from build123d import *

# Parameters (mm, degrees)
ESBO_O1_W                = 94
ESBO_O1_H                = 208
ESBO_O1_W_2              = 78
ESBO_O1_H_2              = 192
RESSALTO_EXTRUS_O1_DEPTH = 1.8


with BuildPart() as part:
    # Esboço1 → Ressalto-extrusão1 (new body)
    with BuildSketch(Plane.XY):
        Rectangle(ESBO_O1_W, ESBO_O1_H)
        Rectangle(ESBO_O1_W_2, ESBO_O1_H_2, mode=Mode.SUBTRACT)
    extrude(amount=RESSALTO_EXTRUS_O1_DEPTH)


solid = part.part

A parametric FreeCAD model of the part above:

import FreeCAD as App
import Part
import Sketcher

V = App.Vector

doc = App.newDocument("Part")
body = doc.addObject("PartDesign::Body", "Body")

# Sketch on XY plane
sketch1 = doc.addObject("Sketcher::SketchObject", "Sketch")
body.addObject(sketch1)
sketch1.AttachmentSupport = (doc.XY_Plane, [""])
sketch1.MapMode = "FlatFace"
sketch1.addGeometry([
    Part.LineSegment(V(-47, 104, 0), V(-47, -104, 0)),  # 0
    Part.LineSegment(V(-47, -104, 0), V(47, -104, 0)),  # 1
    Part.LineSegment(V(47, -104, 0), V(47, 104, 0)),  # 2
    Part.LineSegment(V(47, 104, 0), V(-47, 104, 0)),  # 3
    Part.LineSegment(V(39, -96, 0), V(-39, -96, 0)),  # 4
    Part.LineSegment(V(-39, -96, 0), V(-39, 96, 0)),  # 5
    Part.LineSegment(V(-39, 96, 0), V(39, 96, 0)),  # 6
    Part.LineSegment(V(39, 96, 0), V(39, -96, 0)),  # 7
], False)
sketch1.addConstraint([
    Sketcher.Constraint("Coincident", 0, 2, 1, 1),
    Sketcher.Constraint("Coincident", 1, 2, 2, 1),
    Sketcher.Constraint("Coincident", 2, 2, 3, 1),
    Sketcher.Constraint("Coincident", 3, 2, 0, 1),
    Sketcher.Constraint("Coincident", 4, 2, 5, 1),
    Sketcher.Constraint("Coincident", 5, 2, 6, 1),
    Sketcher.Constraint("Coincident", 6, 2, 7, 1),
    Sketcher.Constraint("Coincident", 7, 2, 4, 1),
    Sketcher.Constraint("Vertical", 0),
    Sketcher.Constraint("Horizontal", 1),
    Sketcher.Constraint("Vertical", 2),
    Sketcher.Constraint("Horizontal", 3),
    Sketcher.Constraint("Horizontal", 4),
    Sketcher.Constraint("Vertical", 5),
    Sketcher.Constraint("Horizontal", 6),
    Sketcher.Constraint("Vertical", 7),
    Sketcher.Constraint("Symmetric", 0, 2, 2, 2, -1, 1),
    Sketcher.Constraint("Symmetric", 4, 2, 6, 2, -1, 1),
    Sketcher.Constraint("DistanceX", 1, 1, 1, 2, 94.0),
    Sketcher.Constraint("DistanceX", 4, 2, 4, 1, 78.0),
    Sketcher.Constraint("DistanceY", 0, 2, 0, 1, 208.0),
    Sketcher.Constraint("DistanceY", 5, 1, 5, 2, 192.0),
])
pad1 = doc.addObject("PartDesign::Pad", "Pad")
body.addObject(pad1)
pad1.Profile = sketch1
pad1.Length = 1.8

doc.recompute()
